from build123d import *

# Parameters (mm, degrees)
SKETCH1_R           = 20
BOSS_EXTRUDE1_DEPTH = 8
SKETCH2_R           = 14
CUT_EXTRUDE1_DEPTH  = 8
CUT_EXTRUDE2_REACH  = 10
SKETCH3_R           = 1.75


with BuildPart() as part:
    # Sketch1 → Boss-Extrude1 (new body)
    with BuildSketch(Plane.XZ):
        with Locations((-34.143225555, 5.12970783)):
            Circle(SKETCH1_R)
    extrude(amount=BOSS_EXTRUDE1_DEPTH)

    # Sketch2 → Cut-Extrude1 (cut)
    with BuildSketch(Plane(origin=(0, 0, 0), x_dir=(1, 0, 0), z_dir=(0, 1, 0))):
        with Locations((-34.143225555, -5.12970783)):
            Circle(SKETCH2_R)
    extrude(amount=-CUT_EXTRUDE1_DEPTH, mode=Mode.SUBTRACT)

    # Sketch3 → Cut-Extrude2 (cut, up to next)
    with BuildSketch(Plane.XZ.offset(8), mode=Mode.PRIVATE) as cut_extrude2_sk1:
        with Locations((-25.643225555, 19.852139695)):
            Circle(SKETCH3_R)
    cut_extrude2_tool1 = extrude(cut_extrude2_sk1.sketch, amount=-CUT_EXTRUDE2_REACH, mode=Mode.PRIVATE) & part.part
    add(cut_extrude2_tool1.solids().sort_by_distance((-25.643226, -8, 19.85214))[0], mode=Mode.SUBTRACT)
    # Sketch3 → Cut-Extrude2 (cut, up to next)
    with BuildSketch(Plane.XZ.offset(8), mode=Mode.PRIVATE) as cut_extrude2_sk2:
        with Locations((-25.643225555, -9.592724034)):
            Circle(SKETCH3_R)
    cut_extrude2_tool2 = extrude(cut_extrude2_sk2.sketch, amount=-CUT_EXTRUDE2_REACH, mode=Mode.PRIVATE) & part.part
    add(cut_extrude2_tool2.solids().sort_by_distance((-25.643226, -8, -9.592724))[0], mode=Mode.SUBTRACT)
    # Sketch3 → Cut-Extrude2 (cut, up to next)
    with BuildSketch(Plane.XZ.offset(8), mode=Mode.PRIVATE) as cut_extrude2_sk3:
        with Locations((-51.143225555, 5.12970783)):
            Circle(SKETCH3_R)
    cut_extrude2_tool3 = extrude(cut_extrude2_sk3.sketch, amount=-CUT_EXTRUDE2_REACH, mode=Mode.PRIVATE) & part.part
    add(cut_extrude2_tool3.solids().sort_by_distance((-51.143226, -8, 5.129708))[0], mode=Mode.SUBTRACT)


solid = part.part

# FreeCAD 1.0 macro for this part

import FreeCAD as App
import Part
import Sketcher

doc = App.newDocument("Part")
body = doc.addObject("PartDesign::Body", "Body")

sketch1 = body.newObject("Sketcher::SketchObject", "Sketch")
sketch1.AttachmentSupport = (doc.getObject("XZ_Plane"), [""])
sketch1.MapMode = "FlatFace"
sketch1.addGeometry(Part.Circle(App.Vector(-34, 5, 0), App.Vector(0, 0, 1), 20), False)
sketch1.addConstraint([
    Sketcher.Constraint("Diameter", 0, 40.0),
    Sketcher.Constraint("DistanceX", 0, 3, -1, 1, 34.143226),
    Sketcher.Constraint("DistanceY", -1, 1, 0, 3, 5.129708),
])
pad1 = body.newObject("PartDesign::Pad", "Pad")
pad1.Profile = sketch1
pad1.Length = 8

sketch2 = body.newObject("Sketcher::SketchObject", "Sketch001")
sketch2.AttachmentSupport = (doc.getObject("XZ_Plane"), [""])
sketch2.MapMode = "FlatFace"
sketch2.addGeometry(Part.Circle(App.Vector(-34, 5, 0), App.Vector(0, 0, 1), 14), False)
sketch2.addConstraint([
    Sketcher.Constraint("Diameter", 0, 28.0),
    Sketcher.Constraint("DistanceX", 0, 3, -1, 1, 34.143226),
    Sketcher.Constraint("DistanceY", -1, 1, 0, 3, 5.129708),
])
pocket1 = body.newObject("PartDesign::Pocket", "Pocket")
pocket1.Profile = sketch2
pocket1.Length = 8
pocket1.Reversed = True

sketch3 = body.newObject("Sketcher::SketchObject", "Sketch002")
sketch3.AttachmentSupport = (doc.getObject("XZ_Plane"), [""])
sketch3.MapMode = "FlatFace"
sketch3.AttachmentOffset = App.Placement(App.Vector(0, 0, 8), App.Rotation())
sketch3.addGeometry(Part.Circle(App.Vector(-25.6, 19.9, 0), App.Vector(0, 0, 1), 1.8), False)
sketch3.addConstraint([
    Sketcher.Constraint("Diameter", 0, 3.5),
    Sketcher.Constraint("DistanceY", -1, 1, 0, 3, 19.85214),
    Sketcher.Constraint("DistanceX", 0, 3, -1, 1, 25.643226),
])
pocket2 = body.newObject("PartDesign::Pocket", "Pocket001")
pocket2.Profile = sketch3
pocket2.Type = "UpToFirst"

sketch4 = body.newObject("Sketcher::SketchObject", "Sketch003")
sketch4.AttachmentSupport = (doc.getObject("XZ_Plane"), [""])
sketch4.MapMode = "FlatFace"
sketch4.AttachmentOffset = App.Placement(App.Vector(0, 0, 8), App.Rotation())
sketch4.addGeometry(Part.Circle(App.Vector(-25.6, -9.6, 0), App.Vector(0, 0, 1), 1.8), False)
sketch4.addConstraint([
    Sketcher.Constraint("Diameter", 0, 3.5),
    Sketcher.Constraint("DistanceX", 0, 3, -1, 1, 25.643226),
    Sketcher.Constraint("DistanceY", 0, 3, -1, 1, 9.592724),
])
pocket3 = body.newObject("PartDesign::Pocket", "Pocket002")
pocket3.Profile = sketch4
pocket3.Type = "UpToFirst"

sketch5 = body.newObject("Sketcher::SketchObject", "Sketch004")
sketch5.AttachmentSupport = (doc.getObject("XZ_Plane"), [""])
sketch5.MapMode = "FlatFace"
sketch5.AttachmentOffset = App.Placement(App.Vector(0, 0, 8), App.Rotation())
sketch5.addGeometry(Part.Circle(App.Vector(-51.1, 5.1, 0), App.Vector(0, 0, 1), 1.8), False)
sketch5.addConstraint([
    Sketcher.Constraint("Diameter", 0, 3.5),
    Sketcher.Constraint("DistanceX", 0, 3, -1, 1, 51.143226),
    Sketcher.Constraint("DistanceY", -1, 1, 0, 3, 5.129708),
])
pocket4 = body.newObject("PartDesign::Pocket", "Pocket003")
pocket4.Profile = sketch5
pocket4.Type = "UpToFirst"

doc.recompute()
